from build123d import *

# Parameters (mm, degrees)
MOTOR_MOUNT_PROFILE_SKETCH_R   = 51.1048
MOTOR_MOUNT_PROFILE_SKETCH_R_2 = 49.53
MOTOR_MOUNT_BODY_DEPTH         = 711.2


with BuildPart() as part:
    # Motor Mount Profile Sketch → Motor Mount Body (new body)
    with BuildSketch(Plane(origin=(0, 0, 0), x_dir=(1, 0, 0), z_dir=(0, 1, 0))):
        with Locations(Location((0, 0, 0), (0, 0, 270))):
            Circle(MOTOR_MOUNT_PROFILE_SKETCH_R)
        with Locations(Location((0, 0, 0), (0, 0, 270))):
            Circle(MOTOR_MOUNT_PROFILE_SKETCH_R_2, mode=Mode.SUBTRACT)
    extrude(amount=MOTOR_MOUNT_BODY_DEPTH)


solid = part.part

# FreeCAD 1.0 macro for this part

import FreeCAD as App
import Part
import Sketcher
from FreeCAD import Vector
Q = App.Units.Quantity

doc = App.newDocument("Part")
body = doc.addObject("PartDesign::Body", "Body")

# Sketch on XZ plane
sketch1 = body.newObject("Sketcher::SketchObject", "Sketch")
sketch1.AttachmentSupport = (doc.getObject("XZ_Plane"), [""])
sketch1.MapMode = "FlatFace"
sketch1.addGeometry(Part.Circle(Vector(0, 0, 0), Vector(0, 0, 1), 51), False)
sketch1.addGeometry(Part.Circle(Vector(0, 0, 0), Vector(0, 0, 1), 50), False)
sketch1.addConstraint(Sketcher.Constraint("Coincident", 0, 3, -1, 1))
sketch1.addConstraint(Sketcher.Constraint("Coincident", 1, 3, -1, 1))
sketch1.addConstraint(Sketcher.Constraint("Diameter", 1, Q("3.9 in")))
sketch1.addConstraint(Sketcher.Constraint("Diameter", 0, Q("4.024 in")))
pad1 = body.newObject("PartDesign::Pad", "Pad")
pad1.Profile = sketch1
pad1.Length = Q("28 in")
pad1.Reversed = True

doc.recompute()
